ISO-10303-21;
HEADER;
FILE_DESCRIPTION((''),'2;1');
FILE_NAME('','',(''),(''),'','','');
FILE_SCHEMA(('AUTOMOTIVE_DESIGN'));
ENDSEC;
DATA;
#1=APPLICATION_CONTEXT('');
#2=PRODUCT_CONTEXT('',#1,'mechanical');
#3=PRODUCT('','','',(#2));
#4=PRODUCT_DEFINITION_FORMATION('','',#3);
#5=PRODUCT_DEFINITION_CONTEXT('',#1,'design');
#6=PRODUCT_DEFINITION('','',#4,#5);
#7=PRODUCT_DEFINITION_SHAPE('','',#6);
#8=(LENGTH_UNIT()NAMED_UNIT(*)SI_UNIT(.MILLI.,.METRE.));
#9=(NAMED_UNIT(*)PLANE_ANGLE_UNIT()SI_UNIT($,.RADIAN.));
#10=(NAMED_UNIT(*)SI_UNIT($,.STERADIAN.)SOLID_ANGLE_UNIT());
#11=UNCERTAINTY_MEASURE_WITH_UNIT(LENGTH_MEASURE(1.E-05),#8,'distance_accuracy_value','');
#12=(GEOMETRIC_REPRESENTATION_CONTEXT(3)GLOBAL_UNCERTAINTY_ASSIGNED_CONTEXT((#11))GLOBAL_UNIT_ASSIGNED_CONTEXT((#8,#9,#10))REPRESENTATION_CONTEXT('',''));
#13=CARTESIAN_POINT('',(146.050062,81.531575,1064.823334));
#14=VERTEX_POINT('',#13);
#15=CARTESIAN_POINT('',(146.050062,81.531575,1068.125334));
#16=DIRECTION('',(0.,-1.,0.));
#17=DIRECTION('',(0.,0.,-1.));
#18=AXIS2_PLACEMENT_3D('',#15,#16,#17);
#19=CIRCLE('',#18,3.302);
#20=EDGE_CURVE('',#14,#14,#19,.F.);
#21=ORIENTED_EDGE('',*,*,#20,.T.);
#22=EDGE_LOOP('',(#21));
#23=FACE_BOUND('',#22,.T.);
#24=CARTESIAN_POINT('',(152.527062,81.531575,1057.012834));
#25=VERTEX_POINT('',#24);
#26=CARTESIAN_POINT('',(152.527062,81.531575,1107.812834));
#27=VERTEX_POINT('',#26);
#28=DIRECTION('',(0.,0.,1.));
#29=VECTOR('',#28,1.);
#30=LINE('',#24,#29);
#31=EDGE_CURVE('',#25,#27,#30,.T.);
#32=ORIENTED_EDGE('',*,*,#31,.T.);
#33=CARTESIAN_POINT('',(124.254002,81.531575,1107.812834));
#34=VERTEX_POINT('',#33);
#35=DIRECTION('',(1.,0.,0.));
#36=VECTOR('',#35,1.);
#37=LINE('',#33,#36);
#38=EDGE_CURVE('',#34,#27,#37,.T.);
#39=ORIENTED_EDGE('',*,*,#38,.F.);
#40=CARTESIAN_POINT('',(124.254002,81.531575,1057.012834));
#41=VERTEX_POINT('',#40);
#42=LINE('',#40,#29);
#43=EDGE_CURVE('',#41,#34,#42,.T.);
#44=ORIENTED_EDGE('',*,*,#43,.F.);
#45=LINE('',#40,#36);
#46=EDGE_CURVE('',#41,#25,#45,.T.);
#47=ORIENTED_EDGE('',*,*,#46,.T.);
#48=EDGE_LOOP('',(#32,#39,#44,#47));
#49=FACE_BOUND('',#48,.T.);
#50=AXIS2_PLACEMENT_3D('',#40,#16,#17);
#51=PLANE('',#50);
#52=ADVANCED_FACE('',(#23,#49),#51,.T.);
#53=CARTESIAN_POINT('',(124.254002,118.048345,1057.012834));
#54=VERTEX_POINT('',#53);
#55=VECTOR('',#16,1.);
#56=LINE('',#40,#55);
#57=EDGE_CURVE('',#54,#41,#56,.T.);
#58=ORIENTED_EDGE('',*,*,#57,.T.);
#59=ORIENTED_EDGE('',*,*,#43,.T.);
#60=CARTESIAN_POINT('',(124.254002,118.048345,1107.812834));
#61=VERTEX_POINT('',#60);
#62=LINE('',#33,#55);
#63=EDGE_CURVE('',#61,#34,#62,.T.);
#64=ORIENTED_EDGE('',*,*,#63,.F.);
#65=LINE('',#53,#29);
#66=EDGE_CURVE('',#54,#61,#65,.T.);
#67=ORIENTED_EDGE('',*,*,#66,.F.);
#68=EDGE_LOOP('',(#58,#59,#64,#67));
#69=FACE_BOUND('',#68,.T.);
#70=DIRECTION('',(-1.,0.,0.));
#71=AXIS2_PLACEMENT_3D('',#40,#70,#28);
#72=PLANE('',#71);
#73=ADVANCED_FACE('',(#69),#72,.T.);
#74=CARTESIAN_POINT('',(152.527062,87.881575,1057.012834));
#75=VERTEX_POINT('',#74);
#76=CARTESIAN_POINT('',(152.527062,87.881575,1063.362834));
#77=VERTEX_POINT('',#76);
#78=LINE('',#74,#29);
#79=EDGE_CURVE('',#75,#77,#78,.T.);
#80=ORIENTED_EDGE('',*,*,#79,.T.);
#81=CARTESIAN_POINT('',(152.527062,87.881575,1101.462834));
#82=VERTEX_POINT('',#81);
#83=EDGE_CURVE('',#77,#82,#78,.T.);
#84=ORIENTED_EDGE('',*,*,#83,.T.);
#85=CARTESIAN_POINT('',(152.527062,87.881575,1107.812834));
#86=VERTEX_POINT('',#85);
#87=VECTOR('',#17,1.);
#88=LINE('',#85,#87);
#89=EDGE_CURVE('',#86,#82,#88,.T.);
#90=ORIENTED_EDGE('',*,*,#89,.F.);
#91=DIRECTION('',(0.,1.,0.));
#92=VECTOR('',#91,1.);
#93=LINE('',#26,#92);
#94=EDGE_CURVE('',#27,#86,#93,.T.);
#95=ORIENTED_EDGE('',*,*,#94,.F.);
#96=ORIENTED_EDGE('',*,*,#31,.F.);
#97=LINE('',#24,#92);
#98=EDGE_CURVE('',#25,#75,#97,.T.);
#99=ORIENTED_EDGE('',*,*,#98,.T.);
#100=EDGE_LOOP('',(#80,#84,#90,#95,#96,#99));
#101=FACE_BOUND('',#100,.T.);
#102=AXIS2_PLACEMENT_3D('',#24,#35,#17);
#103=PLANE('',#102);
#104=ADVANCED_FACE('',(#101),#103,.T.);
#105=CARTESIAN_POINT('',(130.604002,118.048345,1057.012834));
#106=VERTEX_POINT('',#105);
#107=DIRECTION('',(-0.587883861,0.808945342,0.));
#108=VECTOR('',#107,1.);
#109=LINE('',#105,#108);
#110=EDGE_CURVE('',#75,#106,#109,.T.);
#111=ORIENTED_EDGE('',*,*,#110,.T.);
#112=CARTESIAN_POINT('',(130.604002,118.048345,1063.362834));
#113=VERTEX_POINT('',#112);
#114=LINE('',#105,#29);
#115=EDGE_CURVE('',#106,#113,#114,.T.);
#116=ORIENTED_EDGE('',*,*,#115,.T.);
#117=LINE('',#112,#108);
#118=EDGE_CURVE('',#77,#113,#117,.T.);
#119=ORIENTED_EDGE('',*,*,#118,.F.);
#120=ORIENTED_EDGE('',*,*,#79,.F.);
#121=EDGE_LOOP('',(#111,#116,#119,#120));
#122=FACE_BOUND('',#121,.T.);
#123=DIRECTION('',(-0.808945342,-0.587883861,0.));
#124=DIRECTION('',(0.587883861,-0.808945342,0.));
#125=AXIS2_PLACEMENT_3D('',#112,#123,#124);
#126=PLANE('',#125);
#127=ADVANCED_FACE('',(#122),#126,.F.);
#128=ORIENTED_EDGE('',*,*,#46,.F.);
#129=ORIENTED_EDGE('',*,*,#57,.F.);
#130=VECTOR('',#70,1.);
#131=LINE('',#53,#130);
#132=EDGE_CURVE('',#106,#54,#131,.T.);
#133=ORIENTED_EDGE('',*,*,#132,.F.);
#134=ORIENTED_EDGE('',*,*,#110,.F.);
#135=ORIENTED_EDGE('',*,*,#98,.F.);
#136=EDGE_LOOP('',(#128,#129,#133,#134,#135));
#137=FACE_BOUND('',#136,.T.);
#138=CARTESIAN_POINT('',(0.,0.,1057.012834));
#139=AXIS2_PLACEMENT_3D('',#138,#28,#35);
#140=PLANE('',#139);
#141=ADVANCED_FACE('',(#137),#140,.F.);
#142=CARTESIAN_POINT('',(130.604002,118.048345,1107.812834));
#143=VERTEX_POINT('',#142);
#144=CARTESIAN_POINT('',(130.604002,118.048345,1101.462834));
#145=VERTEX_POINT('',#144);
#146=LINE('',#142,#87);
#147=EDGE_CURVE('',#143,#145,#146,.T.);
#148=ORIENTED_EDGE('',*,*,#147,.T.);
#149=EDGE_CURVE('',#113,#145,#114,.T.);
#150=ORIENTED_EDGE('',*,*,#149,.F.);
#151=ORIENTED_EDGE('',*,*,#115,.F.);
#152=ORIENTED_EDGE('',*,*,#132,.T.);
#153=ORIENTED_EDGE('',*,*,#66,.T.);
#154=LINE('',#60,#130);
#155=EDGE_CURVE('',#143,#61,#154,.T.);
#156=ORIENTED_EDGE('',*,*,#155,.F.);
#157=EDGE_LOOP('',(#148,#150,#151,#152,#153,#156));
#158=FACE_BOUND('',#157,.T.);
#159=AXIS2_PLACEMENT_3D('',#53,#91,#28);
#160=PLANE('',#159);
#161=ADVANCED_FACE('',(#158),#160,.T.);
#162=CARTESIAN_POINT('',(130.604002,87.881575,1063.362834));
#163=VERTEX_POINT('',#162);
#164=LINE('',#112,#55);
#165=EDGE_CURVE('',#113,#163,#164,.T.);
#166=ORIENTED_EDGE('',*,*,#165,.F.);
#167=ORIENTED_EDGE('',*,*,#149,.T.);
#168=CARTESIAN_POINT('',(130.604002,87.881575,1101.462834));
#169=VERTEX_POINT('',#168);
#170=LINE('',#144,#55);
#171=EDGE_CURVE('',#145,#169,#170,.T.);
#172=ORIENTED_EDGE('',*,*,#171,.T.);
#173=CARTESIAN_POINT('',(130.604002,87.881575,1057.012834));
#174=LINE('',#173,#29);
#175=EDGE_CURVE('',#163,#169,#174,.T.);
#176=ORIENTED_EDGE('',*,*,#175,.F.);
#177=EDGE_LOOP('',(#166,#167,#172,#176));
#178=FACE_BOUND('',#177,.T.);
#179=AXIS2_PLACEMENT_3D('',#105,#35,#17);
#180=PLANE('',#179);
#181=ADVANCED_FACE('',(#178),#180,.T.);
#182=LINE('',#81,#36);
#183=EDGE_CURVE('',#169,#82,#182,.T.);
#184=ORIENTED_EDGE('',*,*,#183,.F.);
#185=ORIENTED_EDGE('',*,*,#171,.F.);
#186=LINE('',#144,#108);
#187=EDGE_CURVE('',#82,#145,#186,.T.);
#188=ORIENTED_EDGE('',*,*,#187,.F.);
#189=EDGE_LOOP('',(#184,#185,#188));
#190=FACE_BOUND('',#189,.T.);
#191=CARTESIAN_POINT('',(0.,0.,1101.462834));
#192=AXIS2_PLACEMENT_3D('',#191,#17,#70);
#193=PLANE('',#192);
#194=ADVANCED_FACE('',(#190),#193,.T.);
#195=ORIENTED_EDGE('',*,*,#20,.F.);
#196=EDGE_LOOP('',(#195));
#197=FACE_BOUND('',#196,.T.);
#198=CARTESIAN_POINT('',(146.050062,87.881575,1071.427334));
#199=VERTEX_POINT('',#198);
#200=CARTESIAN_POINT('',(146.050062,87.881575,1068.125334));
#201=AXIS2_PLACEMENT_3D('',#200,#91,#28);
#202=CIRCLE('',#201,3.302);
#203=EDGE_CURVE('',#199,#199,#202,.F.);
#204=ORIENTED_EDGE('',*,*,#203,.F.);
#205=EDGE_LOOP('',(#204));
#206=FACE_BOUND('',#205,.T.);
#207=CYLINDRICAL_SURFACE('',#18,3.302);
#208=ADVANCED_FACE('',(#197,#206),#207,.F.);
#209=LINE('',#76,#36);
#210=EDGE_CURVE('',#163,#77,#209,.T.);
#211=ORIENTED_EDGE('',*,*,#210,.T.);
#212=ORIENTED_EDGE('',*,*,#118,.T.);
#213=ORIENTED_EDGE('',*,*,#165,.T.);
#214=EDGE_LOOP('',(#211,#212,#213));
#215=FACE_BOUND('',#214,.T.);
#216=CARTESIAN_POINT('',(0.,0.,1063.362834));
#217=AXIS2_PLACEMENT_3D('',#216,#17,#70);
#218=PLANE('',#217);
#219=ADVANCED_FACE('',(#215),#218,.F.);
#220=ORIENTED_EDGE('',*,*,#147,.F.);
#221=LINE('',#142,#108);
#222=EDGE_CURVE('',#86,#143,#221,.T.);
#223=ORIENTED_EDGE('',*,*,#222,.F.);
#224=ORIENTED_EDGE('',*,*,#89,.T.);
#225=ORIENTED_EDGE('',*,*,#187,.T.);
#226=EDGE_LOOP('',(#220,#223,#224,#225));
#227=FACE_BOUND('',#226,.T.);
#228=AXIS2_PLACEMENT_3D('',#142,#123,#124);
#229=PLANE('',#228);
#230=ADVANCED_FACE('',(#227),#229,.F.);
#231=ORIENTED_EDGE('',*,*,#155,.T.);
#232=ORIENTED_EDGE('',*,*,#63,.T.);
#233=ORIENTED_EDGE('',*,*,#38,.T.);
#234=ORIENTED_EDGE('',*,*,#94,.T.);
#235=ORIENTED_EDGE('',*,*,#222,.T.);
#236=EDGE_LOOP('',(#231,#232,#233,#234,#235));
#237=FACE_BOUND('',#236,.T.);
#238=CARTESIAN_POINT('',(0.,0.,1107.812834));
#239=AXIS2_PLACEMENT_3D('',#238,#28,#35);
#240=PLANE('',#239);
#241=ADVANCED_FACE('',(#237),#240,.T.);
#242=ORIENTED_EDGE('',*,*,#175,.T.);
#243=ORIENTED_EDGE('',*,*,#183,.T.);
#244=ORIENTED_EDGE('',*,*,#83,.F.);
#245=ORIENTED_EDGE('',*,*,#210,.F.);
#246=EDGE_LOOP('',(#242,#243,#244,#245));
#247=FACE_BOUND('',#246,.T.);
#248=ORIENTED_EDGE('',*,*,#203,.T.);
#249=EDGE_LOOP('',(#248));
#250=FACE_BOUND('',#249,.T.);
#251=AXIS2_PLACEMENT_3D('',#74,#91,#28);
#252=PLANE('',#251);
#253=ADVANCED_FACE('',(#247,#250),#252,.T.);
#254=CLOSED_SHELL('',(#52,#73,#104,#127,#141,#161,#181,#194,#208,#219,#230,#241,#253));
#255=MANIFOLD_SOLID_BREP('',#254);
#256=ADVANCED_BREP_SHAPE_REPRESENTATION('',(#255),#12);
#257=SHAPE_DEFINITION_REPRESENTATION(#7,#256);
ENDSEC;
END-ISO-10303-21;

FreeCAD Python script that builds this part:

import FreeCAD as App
import Part
import Sketcher
from FreeCAD import Vector
Q = App.Units.Quantity

doc = App.newDocument("Part")
body = doc.addObject("PartDesign::Body", "Body")

# Sketch on XY plane
sketch1 = body.newObject("Sketcher::SketchObject", "Sketch")
sketch1.AttachmentSupport = (doc.getObject("XY_Plane"), [""])
sketch1.MapMode = "FlatFace"
sketch1.AttachmentOffset = App.Placement(Vector(0, 0, 1057.012834), App.Rotation())
sketch1.addGeometry([
    Part.LineSegment(Vector(153, 82, 0), Vector(153, 88, 0)),  # 0
    Part.LineSegment(Vector(153, 88, 0), Vector(131, 88, 0)),  # 1
    Part.LineSegment(Vector(131, 88, 0), Vector(131, 118, 0)),  # 2
    Part.LineSegment(Vector(131, 118, 0), Vector(124, 118, 0)),  # 3
    Part.LineSegment(Vector(124, 118, 0), Vector(124, 82, 0)),  # 4
    Part.LineSegment(Vector(124, 82, 0), Vector(153, 82, 0)),  # 5
], False)
sketch1.addConstraint([
    Sketcher.Constraint("Coincident", 0, 2, 1, 1),
    Sketcher.Constraint("Coincident", 1, 2, 2, 1),
    Sketcher.Constraint("Coincident", 2, 2, 3, 1),
    Sketcher.Constraint("Coincident", 3, 2, 4, 1),
    Sketcher.Constraint("Coincident", 4, 2, 5, 1),
    Sketcher.Constraint("Coincident", 5, 2, 0, 1),
    Sketcher.Constraint("Vertical", 0),
    Sketcher.Constraint("Horizontal", 1),
    Sketcher.Constraint("Vertical", 2),
    Sketcher.Constraint("Horizontal", 3),
    Sketcher.Constraint("Vertical", 4),
    Sketcher.Constraint("Horizontal", 5),
    Sketcher.Constraint("Equal", 3, 0),
    Sketcher.Constraint("DistanceX", 3, 2, 3, 1, Q("0.25 in")),
    Sketcher.Constraint("DistanceX", 1, 2, 1, 1, 21.92306),
    Sketcher.Constraint("DistanceY", 2, 1, 2, 2, 30.16677),
    Sketcher.Constraint("DistanceX", -1, 1, 0, 2, 152.527062),
    Sketcher.Constraint("DistanceY", -1, 1, 0, 2, 87.881575),
])
pad1 = body.newObject("PartDesign::Pad", "Pad")
pad1.Profile = sketch1
pad1.Length = Q("2 in")

# Sketch on XZ plane
sketch2 = body.newObject("Sketcher::SketchObject", "Sketch001")
sketch2.AttachmentSupport = (doc.getObject("XZ_Plane"), [""])
sketch2.MapMode = "FlatFace"
sketch2.addGeometry(Part.Circle(Vector(146.1, 1068.1, 0), Vector(0, 0, 1), 3.3), False)
sketch2.addConstraint([
    Sketcher.Constraint("Diameter", 0, Q("0.26 in")),
    Sketcher.Constraint("DistanceX", -1, 1, 0, 3, 146.050062),
    Sketcher.Constraint("DistanceY", -1, 1, 0, 3, 1068.125334),
])
pocket1 = body.newObject("PartDesign::Pocket", "Pocket")
pocket1.Profile = sketch2
pocket1.Type = "ThroughAll"
pocket1.Midplane = True

# Sketch on XY plane
sketch3 = body.newObject("Sketcher::SketchObject", "Sketch002")
sketch3.AttachmentSupport = (doc.getObject("XY_Plane"), [""])
sketch3.MapMode = "FlatFace"
sketch3.AttachmentOffset = App.Placement(Vector(0, 0, 1057.012834), App.Rotation())
sketch3.addGeometry([
    Part.LineSegment(Vector(153, 88, 0), Vector(131, 118, 0)),
    Part.LineSegment(Vector(131, 118, 0), Vector(131, 88, 0)),
    Part.LineSegment(Vector(131, 88, 0), Vector(153, 88, 0)),
], False)
sketch3.addConstraint([
    Sketcher.Constraint("Coincident", 0, 2, 1, 1),
    Sketcher.Constraint("Coincident", 1, 2, 2, 1),
    Sketcher.Constraint("Coincident", 2, 2, 0, 1),
    Sketcher.Constraint("Vertical", 1),
    Sketcher.Constraint("Horizontal", 2),
    Sketcher.Constraint("DistanceX", 2, 1, 2, 2, 21.92306),
    Sketcher.Constraint("DistanceY", 1, 2, 1, 1, 30.16677),
    Sketcher.Constraint("DistanceX", -1, 1, 0, 2, 130.604002),
    Sketcher.Constraint("DistanceY", -1, 1, 0, 2, 118.048345),
])
pad2 = body.newObject("PartDesign::Pad", "Pad001")
pad2.Profile = sketch3
pad2.Length = Q("0.25 in")

# Sketch on XY plane
sketch4 = body.newObject("Sketcher::SketchObject", "Sketch003")
sketch4.AttachmentSupport = (doc.getObject("XY_Plane"), [""])
sketch4.MapMode = "FlatFace"
sketch4.AttachmentOffset = App.Placement(Vector(0, 0, 1101.462834), App.Rotation())
sketch4.addGeometry([
    Part.LineSegment(Vector(153, 88, 0), Vector(131, 118, 0)),
    Part.LineSegment(Vector(131, 118, 0), Vector(131, 88, 0)),
    Part.LineSegment(Vector(131, 88, 0), Vector(153, 88, 0)),
], False)
sketch4.addConstraint([
    Sketcher.Constraint("Coincident", 0, 2, 1, 1),
    Sketcher.Constraint("Coincident", 1, 2, 2, 1),
    Sketcher.Constraint("Coincident", 2, 2, 0, 1),
    Sketcher.Constraint("Vertical", 1),
    Sketcher.Constraint("Horizontal", 2),
    Sketcher.Constraint("DistanceX", 2, 1, 2, 2, 21.92306),
    Sketcher.Constraint("DistanceY", 1, 2, 1, 1, 30.16677),
    Sketcher.Constraint("DistanceX", -1, 1, 0, 2, 130.604002),
    Sketcher.Constraint("DistanceY", -1, 1, 0, 2, 118.048345),
])
pad3 = body.newObject("PartDesign::Pad", "Pad002")
pad3.Profile = sketch4
pad3.Length = Q("0.25 in")

doc.recompute()
